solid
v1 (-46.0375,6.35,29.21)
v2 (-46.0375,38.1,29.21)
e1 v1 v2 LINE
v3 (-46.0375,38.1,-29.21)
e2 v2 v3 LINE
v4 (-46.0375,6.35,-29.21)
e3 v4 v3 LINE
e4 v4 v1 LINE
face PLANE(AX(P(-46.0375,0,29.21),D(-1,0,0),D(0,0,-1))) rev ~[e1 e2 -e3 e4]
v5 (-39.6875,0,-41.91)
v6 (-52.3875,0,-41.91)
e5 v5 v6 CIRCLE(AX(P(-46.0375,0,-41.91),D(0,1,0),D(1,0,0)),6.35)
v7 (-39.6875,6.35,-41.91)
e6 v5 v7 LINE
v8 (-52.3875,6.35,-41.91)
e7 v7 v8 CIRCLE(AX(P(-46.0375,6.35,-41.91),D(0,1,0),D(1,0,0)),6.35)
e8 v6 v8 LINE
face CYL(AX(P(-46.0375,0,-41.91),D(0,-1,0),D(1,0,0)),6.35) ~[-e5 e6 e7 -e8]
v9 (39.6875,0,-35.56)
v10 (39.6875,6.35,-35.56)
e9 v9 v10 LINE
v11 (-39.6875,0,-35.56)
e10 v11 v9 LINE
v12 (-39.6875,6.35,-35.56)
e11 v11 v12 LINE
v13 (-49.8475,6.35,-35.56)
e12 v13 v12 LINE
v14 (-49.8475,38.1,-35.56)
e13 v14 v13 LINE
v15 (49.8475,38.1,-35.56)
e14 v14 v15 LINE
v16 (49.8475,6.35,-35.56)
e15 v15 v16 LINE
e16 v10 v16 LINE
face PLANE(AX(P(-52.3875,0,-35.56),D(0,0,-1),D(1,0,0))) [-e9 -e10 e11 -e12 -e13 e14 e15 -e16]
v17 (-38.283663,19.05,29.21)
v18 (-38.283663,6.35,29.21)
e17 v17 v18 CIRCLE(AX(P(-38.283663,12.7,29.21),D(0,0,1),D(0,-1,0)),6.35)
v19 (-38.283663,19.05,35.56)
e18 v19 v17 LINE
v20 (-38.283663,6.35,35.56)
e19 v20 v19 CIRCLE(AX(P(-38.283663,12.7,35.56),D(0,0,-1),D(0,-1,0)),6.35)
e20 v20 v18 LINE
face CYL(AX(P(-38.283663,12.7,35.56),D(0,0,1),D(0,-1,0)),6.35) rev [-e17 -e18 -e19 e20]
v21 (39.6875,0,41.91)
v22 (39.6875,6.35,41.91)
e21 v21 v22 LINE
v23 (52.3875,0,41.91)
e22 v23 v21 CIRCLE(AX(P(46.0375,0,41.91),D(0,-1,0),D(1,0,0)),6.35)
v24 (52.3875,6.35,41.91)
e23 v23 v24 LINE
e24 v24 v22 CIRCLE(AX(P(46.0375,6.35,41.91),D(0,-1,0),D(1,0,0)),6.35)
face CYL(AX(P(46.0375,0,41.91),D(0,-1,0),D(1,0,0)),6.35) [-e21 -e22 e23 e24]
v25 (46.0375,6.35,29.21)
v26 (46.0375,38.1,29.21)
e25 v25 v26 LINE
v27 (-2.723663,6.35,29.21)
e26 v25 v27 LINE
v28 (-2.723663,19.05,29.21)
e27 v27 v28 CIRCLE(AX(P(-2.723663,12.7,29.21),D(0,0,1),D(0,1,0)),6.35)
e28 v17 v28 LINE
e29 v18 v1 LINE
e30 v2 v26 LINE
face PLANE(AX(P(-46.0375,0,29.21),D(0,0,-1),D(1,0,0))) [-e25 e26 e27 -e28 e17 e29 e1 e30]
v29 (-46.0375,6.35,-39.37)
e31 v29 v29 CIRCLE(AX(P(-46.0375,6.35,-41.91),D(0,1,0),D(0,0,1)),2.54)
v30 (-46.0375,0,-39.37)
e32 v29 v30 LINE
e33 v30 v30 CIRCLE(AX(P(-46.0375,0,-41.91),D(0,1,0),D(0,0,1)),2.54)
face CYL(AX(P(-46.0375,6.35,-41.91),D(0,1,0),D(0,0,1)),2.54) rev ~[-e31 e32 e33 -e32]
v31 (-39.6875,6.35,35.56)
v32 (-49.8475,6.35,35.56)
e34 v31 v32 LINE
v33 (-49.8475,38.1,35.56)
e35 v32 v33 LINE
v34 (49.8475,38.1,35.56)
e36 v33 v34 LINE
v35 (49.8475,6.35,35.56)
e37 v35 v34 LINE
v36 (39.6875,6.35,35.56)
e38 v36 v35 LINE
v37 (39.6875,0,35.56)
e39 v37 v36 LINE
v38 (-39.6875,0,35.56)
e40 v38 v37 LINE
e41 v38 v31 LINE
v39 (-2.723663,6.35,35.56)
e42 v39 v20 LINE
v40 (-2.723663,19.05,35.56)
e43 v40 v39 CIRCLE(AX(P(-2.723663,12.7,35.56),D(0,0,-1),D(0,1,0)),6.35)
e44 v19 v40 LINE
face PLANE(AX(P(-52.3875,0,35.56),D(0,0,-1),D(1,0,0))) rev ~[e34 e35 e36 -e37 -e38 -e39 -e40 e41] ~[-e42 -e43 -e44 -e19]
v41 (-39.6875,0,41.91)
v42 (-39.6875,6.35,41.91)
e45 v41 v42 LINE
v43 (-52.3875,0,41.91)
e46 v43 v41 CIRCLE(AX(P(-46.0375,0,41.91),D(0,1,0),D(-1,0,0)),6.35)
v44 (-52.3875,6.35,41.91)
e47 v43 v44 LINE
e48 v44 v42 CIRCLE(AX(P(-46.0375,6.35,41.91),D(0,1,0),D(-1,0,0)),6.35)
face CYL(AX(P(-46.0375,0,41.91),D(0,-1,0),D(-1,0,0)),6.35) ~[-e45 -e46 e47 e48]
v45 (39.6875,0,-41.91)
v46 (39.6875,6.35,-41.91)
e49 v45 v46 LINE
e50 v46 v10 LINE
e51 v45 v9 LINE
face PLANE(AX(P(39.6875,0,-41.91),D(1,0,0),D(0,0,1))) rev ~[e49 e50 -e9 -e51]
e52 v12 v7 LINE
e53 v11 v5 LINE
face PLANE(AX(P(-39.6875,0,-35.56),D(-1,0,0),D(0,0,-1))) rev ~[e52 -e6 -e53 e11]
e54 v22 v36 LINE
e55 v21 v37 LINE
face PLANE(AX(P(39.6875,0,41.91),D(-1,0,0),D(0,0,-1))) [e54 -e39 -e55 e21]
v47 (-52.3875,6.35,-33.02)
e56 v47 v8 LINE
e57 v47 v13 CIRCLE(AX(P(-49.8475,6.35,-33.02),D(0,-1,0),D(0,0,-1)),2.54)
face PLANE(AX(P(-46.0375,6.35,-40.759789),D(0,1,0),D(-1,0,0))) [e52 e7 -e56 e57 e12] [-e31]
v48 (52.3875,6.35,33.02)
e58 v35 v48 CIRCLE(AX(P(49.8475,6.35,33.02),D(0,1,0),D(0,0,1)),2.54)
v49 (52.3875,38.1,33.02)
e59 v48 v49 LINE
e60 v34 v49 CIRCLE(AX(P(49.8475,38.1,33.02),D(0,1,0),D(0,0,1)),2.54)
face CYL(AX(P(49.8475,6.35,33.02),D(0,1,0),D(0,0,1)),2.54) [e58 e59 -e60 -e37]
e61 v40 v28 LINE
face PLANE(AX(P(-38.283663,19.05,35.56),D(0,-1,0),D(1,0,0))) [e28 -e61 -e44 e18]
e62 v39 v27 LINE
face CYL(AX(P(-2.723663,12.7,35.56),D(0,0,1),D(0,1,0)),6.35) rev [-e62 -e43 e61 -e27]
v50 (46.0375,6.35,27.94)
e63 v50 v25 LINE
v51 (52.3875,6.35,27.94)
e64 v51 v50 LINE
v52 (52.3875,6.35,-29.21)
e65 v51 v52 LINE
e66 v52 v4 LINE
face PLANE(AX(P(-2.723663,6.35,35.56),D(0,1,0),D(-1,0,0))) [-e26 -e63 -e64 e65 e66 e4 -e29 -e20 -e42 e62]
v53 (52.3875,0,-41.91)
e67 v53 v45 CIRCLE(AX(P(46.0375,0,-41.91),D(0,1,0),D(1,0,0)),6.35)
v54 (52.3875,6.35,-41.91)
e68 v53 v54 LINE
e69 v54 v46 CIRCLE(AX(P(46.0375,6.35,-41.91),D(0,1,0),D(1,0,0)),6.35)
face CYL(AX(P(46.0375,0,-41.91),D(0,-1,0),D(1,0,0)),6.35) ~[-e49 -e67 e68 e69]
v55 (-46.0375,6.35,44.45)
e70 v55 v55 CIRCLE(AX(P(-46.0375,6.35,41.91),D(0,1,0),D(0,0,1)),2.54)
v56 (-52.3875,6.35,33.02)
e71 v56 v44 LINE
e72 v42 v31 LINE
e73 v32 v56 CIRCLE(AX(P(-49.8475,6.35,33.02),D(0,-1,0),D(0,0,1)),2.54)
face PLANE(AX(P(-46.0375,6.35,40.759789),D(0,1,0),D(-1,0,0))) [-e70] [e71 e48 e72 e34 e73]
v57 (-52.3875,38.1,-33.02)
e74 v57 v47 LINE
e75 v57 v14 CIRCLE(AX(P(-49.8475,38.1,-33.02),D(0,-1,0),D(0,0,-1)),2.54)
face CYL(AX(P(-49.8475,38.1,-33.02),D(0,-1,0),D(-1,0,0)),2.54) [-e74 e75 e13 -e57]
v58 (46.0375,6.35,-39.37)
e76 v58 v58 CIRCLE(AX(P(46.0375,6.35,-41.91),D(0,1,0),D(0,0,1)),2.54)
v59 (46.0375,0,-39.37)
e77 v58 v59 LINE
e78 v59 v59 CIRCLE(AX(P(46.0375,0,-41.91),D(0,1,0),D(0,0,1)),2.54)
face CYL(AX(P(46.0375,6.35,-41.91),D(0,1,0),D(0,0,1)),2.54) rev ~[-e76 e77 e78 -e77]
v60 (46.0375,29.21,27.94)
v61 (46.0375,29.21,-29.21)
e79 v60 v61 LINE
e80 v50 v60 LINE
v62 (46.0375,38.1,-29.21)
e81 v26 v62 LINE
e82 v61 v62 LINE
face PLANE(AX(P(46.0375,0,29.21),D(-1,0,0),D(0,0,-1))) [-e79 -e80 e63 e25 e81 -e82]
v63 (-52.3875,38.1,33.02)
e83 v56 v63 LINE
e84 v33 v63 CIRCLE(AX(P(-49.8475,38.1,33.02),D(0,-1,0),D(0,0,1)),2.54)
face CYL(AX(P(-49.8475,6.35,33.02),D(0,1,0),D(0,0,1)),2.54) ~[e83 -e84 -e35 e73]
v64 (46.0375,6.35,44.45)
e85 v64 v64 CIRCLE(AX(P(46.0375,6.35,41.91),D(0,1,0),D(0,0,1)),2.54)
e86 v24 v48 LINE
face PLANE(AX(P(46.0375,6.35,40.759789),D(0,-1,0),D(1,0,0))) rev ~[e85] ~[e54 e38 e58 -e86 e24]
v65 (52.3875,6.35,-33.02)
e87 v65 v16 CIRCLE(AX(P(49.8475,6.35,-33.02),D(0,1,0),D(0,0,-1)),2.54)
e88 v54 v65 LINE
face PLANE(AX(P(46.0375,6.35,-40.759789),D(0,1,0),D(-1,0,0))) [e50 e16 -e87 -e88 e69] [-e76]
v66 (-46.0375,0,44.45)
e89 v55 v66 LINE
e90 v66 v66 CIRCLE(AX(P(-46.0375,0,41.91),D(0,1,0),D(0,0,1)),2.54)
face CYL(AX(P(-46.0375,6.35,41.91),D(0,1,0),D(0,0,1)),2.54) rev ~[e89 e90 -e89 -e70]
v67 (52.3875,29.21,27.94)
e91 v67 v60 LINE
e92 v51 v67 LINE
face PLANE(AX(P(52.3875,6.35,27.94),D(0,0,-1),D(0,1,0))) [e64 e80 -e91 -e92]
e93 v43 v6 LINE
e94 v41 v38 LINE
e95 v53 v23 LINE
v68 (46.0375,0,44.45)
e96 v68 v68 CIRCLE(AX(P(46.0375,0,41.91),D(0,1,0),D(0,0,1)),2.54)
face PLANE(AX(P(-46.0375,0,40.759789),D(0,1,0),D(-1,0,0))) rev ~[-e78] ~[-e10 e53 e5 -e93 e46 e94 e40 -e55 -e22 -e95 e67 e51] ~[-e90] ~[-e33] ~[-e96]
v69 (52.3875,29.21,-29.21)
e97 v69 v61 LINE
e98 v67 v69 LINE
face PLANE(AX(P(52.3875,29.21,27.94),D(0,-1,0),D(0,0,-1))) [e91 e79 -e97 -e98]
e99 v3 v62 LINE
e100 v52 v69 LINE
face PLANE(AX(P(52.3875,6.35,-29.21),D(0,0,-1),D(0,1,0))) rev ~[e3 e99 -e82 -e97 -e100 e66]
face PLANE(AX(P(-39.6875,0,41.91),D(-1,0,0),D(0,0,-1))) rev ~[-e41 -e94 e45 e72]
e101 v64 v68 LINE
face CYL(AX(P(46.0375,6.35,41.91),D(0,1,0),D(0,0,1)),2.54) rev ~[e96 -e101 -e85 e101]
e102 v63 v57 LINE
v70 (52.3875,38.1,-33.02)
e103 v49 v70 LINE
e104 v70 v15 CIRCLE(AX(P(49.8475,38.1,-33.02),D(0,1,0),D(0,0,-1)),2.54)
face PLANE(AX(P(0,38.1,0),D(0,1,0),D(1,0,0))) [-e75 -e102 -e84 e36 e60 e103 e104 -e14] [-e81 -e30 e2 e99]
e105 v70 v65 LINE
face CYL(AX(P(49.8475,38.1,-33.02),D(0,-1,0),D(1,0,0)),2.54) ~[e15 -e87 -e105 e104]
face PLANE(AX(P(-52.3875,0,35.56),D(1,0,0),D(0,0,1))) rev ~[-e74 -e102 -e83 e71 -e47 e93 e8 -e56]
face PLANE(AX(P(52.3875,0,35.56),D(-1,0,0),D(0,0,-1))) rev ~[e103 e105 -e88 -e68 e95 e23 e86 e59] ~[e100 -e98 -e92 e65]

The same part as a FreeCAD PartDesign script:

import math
import FreeCAD as App
import Part
import Sketcher
Q = App.Units.Quantity


def edges_at(feature, points):
    """Names of the edges that pass closest to the given points."""
    edges = feature.Shape.Edges
    near = lambda p: min(range(len(edges)), key=lambda i: edges[i].distToShape(Part.Vertex(*p))[0])
    return sorted({f"Edge{near(p) + 1}" for p in points})

doc = App.newDocument("Part")
body = doc.addObject("PartDesign::Body", "Body")

sketch1 = body.newObject("Sketcher::SketchObject", "Sketch")
sketch1.AttachmentSupport = (doc.getObject("XZ_Plane"), [""])
sketch1.MapMode = "FlatFace"
sketch1.addGeometry([
    Part.LineSegment(App.Vector(-52, -36, 0), App.Vector(-52, 36, 0)),
    Part.LineSegment(App.Vector(-52, 36, 0), App.Vector(52, 36, 0)),
    Part.LineSegment(App.Vector(52, 36, 0), App.Vector(52, -36, 0)),
    Part.LineSegment(App.Vector(52, -36, 0), App.Vector(-52, -36, 0)),
], False)
sketch1.addConstraint([
    Sketcher.Constraint("Coincident", 0, 2, 1, 1),
    Sketcher.Constraint("Coincident", 1, 2, 2, 1),
    Sketcher.Constraint("Coincident", 2, 2, 3, 1),
    Sketcher.Constraint("Coincident", 3, 2, 0, 1),
    Sketcher.Constraint("Vertical", 0),
    Sketcher.Constraint("Horizontal", 1),
    Sketcher.Constraint("Vertical", 2),
    Sketcher.Constraint("Horizontal", 3),
    Sketcher.Constraint("Symmetric", 0, 2, 2, 2, -1, 1),
    Sketcher.Constraint("DistanceY", 0, 1, 0, 2, Q("2.8 in")),
    Sketcher.Constraint("DistanceX", 1, 1, 1, 2, Q("4.125 in")),
])
pad1 = body.newObject("PartDesign::Pad", "Pad")
pad1.Profile = sketch1
pad1.Length = Q("0.25 in")
pad1.Reversed = True

sketch2 = body.newObject("Sketcher::SketchObject", "Sketch001")
sketch2.AttachmentSupport = (doc.getObject("XZ_Plane"), [""])
sketch2.MapMode = "FlatFace"
sketch2.addGeometry([
    Part.LineSegment(App.Vector(-52, -36, 0), App.Vector(-52, 36, 0)),
    Part.LineSegment(App.Vector(-52, 36, 0), App.Vector(52, 36, 0)),
    Part.LineSegment(App.Vector(52, 36, 0), App.Vector(52, -36, 0)),
    Part.LineSegment(App.Vector(52, -36, 0), App.Vector(-52, -36, 0)),
    Part.LineSegment(App.Vector(46, 29, 0), App.Vector(-46, 29, 0)),
    Part.LineSegment(App.Vector(-46, 29, 0), App.Vector(-46, -29, 0)),
    Part.LineSegment(App.Vector(-46, -29, 0), App.Vector(46, -29, 0)),
    Part.LineSegment(App.Vector(46, -29, 0), App.Vector(46, 29, 0)),
], False)
sketch2.addConstraint([
    Sketcher.Constraint("Coincident", 0, 2, 1, 1),
    Sketcher.Constraint("Coincident", 1, 2, 2, 1),
    Sketcher.Constraint("Coincident", 2, 2, 3, 1),
    Sketcher.Constraint("Coincident", 3, 2, 0, 1),
    Sketcher.Constraint("Coincident", 4, 2, 5, 1),
    Sketcher.Constraint("Coincident", 5, 2, 6, 1),
    Sketcher.Constraint("Coincident", 6, 2, 7, 1),
    Sketcher.Constraint("Coincident", 7, 2, 4, 1),
    Sketcher.Constraint("Vertical", 0),
    Sketcher.Constraint("Horizontal", 1),
    Sketcher.Constraint("Vertical", 2),
    Sketcher.Constraint("Horizontal", 3),
    Sketcher.Constraint("Horizontal", 4),
    Sketcher.Constraint("Vertical", 5),
    Sketcher.Constraint("Horizontal", 6),
    Sketcher.Constraint("Vertical", 7),
    Sketcher.Constraint("Symmetric", 0, 2, 2, 2, -1, 1),
    Sketcher.Constraint("Symmetric", 4, 2, 6, 2, -1, 1),
    Sketcher.Constraint("DistanceY", 0, 1, 0, 2, Q("2.8 in")),
    Sketcher.Constraint("DistanceY", 5, 2, 5, 1, Q("2.3 in")),
    Sketcher.Constraint("DistanceX", 1, 1, 1, 2, Q("4.125 in")),
    Sketcher.Constraint("DistanceX", 4, 2, 4, 1, Q("3.625 in")),
])
pad2 = body.newObject("PartDesign::Pad", "Pad001")
pad2.Profile = sketch2
pad2.Length = Q("1.5 in")
pad2.Reversed = True

sketch3 = body.newObject("Sketcher::SketchObject", "Sketch002")
sketch3.AttachmentSupport = (doc.getObject("XY_Plane"), [""])
sketch3.MapMode = "FlatFace"
sketch3.AttachmentOffset = App.Placement(App.Vector(0, 0, 1.4 * 25.4), App.Rotation())
sketch3.addGeometry([
    Part.LineSegment(App.Vector(-3, 19, 0), App.Vector(-38, 19, 0)),
    Part.ArcOfCircle(Part.Circle(App.Vector(-38, 13, 0), App.Vector(0, 0, 1), 6), math.radians(90), math.radians(270)),
    Part.LineSegment(App.Vector(-38, 6, 0), App.Vector(-3, 6, 0)),
    Part.ArcOfCircle(Part.Circle(App.Vector(-3, 13, 0), App.Vector(0, 0, 1), 6), math.radians(-90), math.radians(90)),
], False)
sketch3.addConstraint([
    Sketcher.Constraint("Tangent", 0, 2, 1, 1),
    Sketcher.Constraint("Tangent", 1, 2, 2, 1),
    Sketcher.Constraint("Tangent", 2, 2, 3, 1),
    Sketcher.Constraint("Tangent", 3, 2, 0, 1),
    Sketcher.Constraint("Horizontal", 0),
    Sketcher.Constraint("Horizontal", 2),
    Sketcher.Constraint("Radius", 1, Q("0.25 in")),
    Sketcher.Constraint("DistanceX", 0, 2, 0, 1, Q("1.4 in")),
    Sketcher.Constraint("DistanceY", -1, 1, 1, 3, Q("0.5 in")),
    Sketcher.Constraint("DistanceX", 1, 3, -1, 1, Q("38.283663 mm")),
])
pocket1 = body.newObject("PartDesign::Pocket", "Pocket")
pocket1.Profile = sketch3
pocket1.Type = "UpToFirst"

sketch4 = body.newObject("Sketcher::SketchObject", "Sketch003")
sketch4.AttachmentSupport = (doc.getObject("YZ_Plane"), [""])
sketch4.MapMode = "FlatFace"
sketch4.AttachmentOffset = App.Placement(App.Vector(0, 0, 2.0625 * 25.4), App.Rotation())
sketch4.addGeometry([
    Part.LineSegment(App.Vector(29, 28, 0), App.Vector(6, 28, 0)),
    Part.LineSegment(App.Vector(6, 28, 0), App.Vector(6, -29, 0)),
    Part.LineSegment(App.Vector(6, -29, 0), App.Vector(29, -29, 0)),
    Part.LineSegment(App.Vector(29, -29, 0), App.Vector(29, 28, 0)),
], False)
sketch4.addConstraint([
    Sketcher.Constraint("Coincident", 0, 2, 1, 1),
    Sketcher.Constraint("Coincident", 1, 2, 2, 1),
    Sketcher.Constraint("Coincident", 2, 2, 3, 1),
    Sketcher.Constraint("Coincident", 3, 2, 0, 1),
    Sketcher.Constraint("Horizontal", 0),
    Sketcher.Constraint("Vertical", 1),
    Sketcher.Constraint("Horizontal", 2),
    Sketcher.Constraint("Vertical", 3),
    Sketcher.Constraint("DistanceX", 0, 2, 0, 1, Q("0.9 in")),
    Sketcher.Constraint("DistanceY", 1, 2, 1, 1, Q("2.25 in")),
    Sketcher.Constraint("DistanceY", -1, 1, 0, 2, Q("1.1 in")),
    Sketcher.Constraint("DistanceX", -1, 1, 0, 2, Q("0.25 in")),
])
pocket2 = body.newObject("PartDesign::Pocket", "Pocket001")
pocket2.Profile = sketch4
pocket2.Type = "UpToFirst"

sketch5 = body.newObject("Sketcher::SketchObject", "Sketch004")
sketch5.AttachmentSupport = (doc.getObject("XZ_Plane"), [""])
sketch5.MapMode = "FlatFace"
sketch5.addGeometry([
    Part.LineSegment(App.Vector(-40, 36, 0), App.Vector(-40, 42, 0)),
    Part.ArcOfCircle(Part.Circle(App.Vector(-46, 42, 0), App.Vector(0, 0, 1), 6), math.radians(0), math.radians(180)),
    Part.LineSegment(App.Vector(-52, 42, 0), App.Vector(-52, 36, 0)),
    Part.LineSegment(App.Vector(-52, 36, 0), App.Vector(-40, 36, 0)),
    Part.LineSegment(App.Vector(40, 42, 0), App.Vector(40, 36, 0)),
    Part.LineSegment(App.Vector(40, 36, 0), App.Vector(52, 36, 0)),
    Part.LineSegment(App.Vector(52, 36, 0), App.Vector(52, 42, 0)),
    Part.ArcOfCircle(Part.Circle(App.Vector(46, 42, 0), App.Vector(0, 0, 1), 6), math.radians(0), math.radians(180)),
    Part.LineSegment(App.Vector(-52, -36, 0), App.Vector(-52, -42, 0)),
    Part.ArcOfCircle(Part.Circle(App.Vector(-46, -42, 0), App.Vector(0, 0, 1), 6), math.radians(180), math.radians(360)),
    Part.LineSegment(App.Vector(-40, -42, 0), App.Vector(-40, -36, 0)),
    Part.LineSegment(App.Vector(-40, -36, 0), App.Vector(-52, -36, 0)),
    Part.LineSegment(App.Vector(40, -36, 0), App.Vector(40, -42, 0)),
    Part.ArcOfCircle(Part.Circle(App.Vector(46, -42, 0), App.Vector(0, 0, 1), 6), math.radians(180), math.radians(360)),
    Part.LineSegment(App.Vector(52, -42, 0), App.Vector(52, -36, 0)),
    Part.LineSegment(App.Vector(52, -36, 0), App.Vector(40, -36, 0)),
], False)
sketch5.addConstraint([
    Sketcher.Constraint("Tangent", 0, 2, 1, 1),
    Sketcher.Constraint("Tangent", 1, 2, 2, 1),
    Sketcher.Constraint("Coincident", 2, 2, 3, 1),
    Sketcher.Constraint("Coincident", 3, 2, 0, 1),
    Sketcher.Constraint("Coincident", 4, 2, 5, 1),
    Sketcher.Constraint("Coincident", 5, 2, 6, 1),
    Sketcher.Constraint("Tangent", 6, 2, 7, 1),
    Sketcher.Constraint("Tangent", 7, 2, 4, 1),
    Sketcher.Constraint("Tangent", 8, 2, 9, 1),
    Sketcher.Constraint("Tangent", 9, 2, 10, 1),
    Sketcher.Constraint("Coincident", 10, 2, 11, 1),
    Sketcher.Constraint("Coincident", 11, 2, 8, 1),
    Sketcher.Constraint("Tangent", 12, 2, 13, 1),
    Sketcher.Constraint("Tangent", 13, 2, 14, 1),
    Sketcher.Constraint("Coincident", 14, 2, 15, 1),
    Sketcher.Constraint("Coincident", 15, 2, 12, 1),
    Sketcher.Constraint("Vertical", 0),
    Sketcher.Constraint("Vertical", 2),
    Sketcher.Constraint("Horizontal", 3),
    Sketcher.Constraint("Vertical", 4),
    Sketcher.Constraint("Horizontal", 5),
    Sketcher.Constraint("Vertical", 6),
    Sketcher.Constraint("Vertical", 8),
    Sketcher.Constraint("Vertical", 10),
    Sketcher.Constraint("Horizontal", 11),
    Sketcher.Constraint("Vertical", 12),
    Sketcher.Constraint("Vertical", 14),
    Sketcher.Constraint("Horizontal", 15),
    Sketcher.Constraint("Equal", 1, 7),
    Sketcher.Constraint("Equal", 7, 9),
    Sketcher.Constraint("Equal", 9, 13),
    Sketcher.Constraint("Symmetric", 7, 3, 9, 3, -1, 1),
    Sketcher.Constraint("Symmetric", 1, 3, 13, 3, -1, 1),
    Sketcher.Constraint("Symmetric", 1, 3, 7, 3, -2),
    Sketcher.Constraint("Horizontal", 3, 2, 4, 2),
    Sketcher.Constraint("Horizontal", 11, 2, 14, 2),
    Sketcher.Constraint("Equal", 6, 8),
    Sketcher.Constraint("Radius", 1, Q("0.25 in")),
    Sketcher.Constraint("DistanceY", 0, 1, 0, 2, Q("0.25 in")),
    Sketcher.Constraint("DistanceY", -1, 1, 2, 2, Q("1.4 in")),
    Sketcher.Constraint("DistanceX", 1, 3, -1, 1, Q("1.8125 in")),
])
pad3 = body.newObject("PartDesign::Pad", "Pad002")
pad3.Profile = sketch5
pad3.Length = Q("0.25 in")
pad3.Reversed = True

sketch6 = body.newObject("Sketcher::SketchObject", "Sketch005")
sketch6.AttachmentSupport = (doc.getObject("XZ_Plane"), [""])
sketch6.MapMode = "FlatFace"
sketch6.AttachmentOffset = App.Placement(App.Vector(0, 0, -0.25 * 25.4), App.Rotation())
sketch6.addGeometry(Part.Circle(App.Vector(-46, -41.9, 0), App.Vector(0, 0, 1), 2.5), False)
sketch6.addConstraint([
    Sketcher.Constraint("Diameter", 0, Q("0.2 in")),
    Sketcher.Constraint("DistanceY", 0, 3, -1, 1, Q("1.65 in")),
    Sketcher.Constraint("DistanceX", 0, 3, -1, 1, Q("1.8125 in")),
])
pocket3 = body.newObject("PartDesign::Pocket", "Pocket002")
pocket3.Profile = sketch6
pocket3.Type = "UpToFirst"
pocket3.Reversed = True

sketch7 = body.newObject("Sketcher::SketchObject", "Sketch006")
sketch7.AttachmentSupport = (doc.getObject("XZ_Plane"), [""])
sketch7.MapMode = "FlatFace"
sketch7.AttachmentOffset = App.Placement(App.Vector(0, 0, -0.25 * 25.4), App.Rotation())
sketch7.addGeometry(Part.Circle(App.Vector(46, -41.9, 0), App.Vector(0, 0, 1), 2.5), False)
sketch7.addConstraint([
    Sketcher.Constraint("Diameter", 0, Q("0.2 in")),
    Sketcher.Constraint("DistanceY", 0, 3, -1, 1, Q("1.65 in")),
    Sketcher.Constraint("DistanceX", -1, 1, 0, 3, Q("1.8125 in")),
])
pocket4 = body.newObject("PartDesign::Pocket", "Pocket003")
pocket4.Profile = sketch7
pocket4.Type = "UpToFirst"
pocket4.Reversed = True

sketch8 = body.newObject("Sketcher::SketchObject", "Sketch007")
sketch8.AttachmentSupport = (doc.getObject("XZ_Plane"), [""])
sketch8.MapMode = "FlatFace"
sketch8.AttachmentOffset = App.Placement(App.Vector(0, 0, -0.25 * 25.4), App.Rotation())
sketch8.addGeometry(Part.Circle(App.Vector(46, 41.9, 0), App.Vector(0, 0, 1), 2.5), False)
sketch8.addConstraint([
    Sketcher.Constraint("Diameter", 0, Q("0.2 in")),
    Sketcher.Constraint("DistanceY", -1, 1, 0, 3, Q("1.65 in")),
    Sketcher.Constraint("DistanceX", -1, 1, 0, 3, Q("1.8125 in")),
])
pocket5 = body.newObject("PartDesign::Pocket", "Pocket004")
pocket5.Profile = sketch8
pocket5.Type = "UpToFirst"
pocket5.Reversed = True

sketch9 = body.newObject("Sketcher::SketchObject", "Sketch008")
sketch9.AttachmentSupport = (doc.getObject("XZ_Plane"), [""])
sketch9.MapMode = "FlatFace"
sketch9.AttachmentOffset = App.Placement(App.Vector(0, 0, -0.25 * 25.4), App.Rotation())
sketch9.addGeometry(Part.Circle(App.Vector(-46, 41.9, 0), App.Vector(0, 0, 1), 2.5), False)
sketch9.addConstraint([
    Sketcher.Constraint("Diameter", 0, Q("0.2 in")),
    Sketcher.Constraint("DistanceY", -1, 1, 0, 3, Q("1.65 in")),
    Sketcher.Constraint("DistanceX", 0, 3, -1, 1, Q("1.8125 in")),
])
pocket6 = body.newObject("PartDesign::Pocket", "Pocket005")
pocket6.Profile = sketch9
pocket6.Type = "UpToFirst"
pocket6.Reversed = True
doc.recompute()

fillet = body.newObject("PartDesign::Fillet", "Fillet")
fillet.Base = (pocket6, edges_at(pocket6, [
    (-52.388, 22.225, -35.56),
    (52.388, 22.225, -35.56),
    (52.388, 22.225, 35.56),
    (-52.388, 22.225, 35.56),
]))
fillet.Radius = Q("0.1 in")

doc.recompute()
